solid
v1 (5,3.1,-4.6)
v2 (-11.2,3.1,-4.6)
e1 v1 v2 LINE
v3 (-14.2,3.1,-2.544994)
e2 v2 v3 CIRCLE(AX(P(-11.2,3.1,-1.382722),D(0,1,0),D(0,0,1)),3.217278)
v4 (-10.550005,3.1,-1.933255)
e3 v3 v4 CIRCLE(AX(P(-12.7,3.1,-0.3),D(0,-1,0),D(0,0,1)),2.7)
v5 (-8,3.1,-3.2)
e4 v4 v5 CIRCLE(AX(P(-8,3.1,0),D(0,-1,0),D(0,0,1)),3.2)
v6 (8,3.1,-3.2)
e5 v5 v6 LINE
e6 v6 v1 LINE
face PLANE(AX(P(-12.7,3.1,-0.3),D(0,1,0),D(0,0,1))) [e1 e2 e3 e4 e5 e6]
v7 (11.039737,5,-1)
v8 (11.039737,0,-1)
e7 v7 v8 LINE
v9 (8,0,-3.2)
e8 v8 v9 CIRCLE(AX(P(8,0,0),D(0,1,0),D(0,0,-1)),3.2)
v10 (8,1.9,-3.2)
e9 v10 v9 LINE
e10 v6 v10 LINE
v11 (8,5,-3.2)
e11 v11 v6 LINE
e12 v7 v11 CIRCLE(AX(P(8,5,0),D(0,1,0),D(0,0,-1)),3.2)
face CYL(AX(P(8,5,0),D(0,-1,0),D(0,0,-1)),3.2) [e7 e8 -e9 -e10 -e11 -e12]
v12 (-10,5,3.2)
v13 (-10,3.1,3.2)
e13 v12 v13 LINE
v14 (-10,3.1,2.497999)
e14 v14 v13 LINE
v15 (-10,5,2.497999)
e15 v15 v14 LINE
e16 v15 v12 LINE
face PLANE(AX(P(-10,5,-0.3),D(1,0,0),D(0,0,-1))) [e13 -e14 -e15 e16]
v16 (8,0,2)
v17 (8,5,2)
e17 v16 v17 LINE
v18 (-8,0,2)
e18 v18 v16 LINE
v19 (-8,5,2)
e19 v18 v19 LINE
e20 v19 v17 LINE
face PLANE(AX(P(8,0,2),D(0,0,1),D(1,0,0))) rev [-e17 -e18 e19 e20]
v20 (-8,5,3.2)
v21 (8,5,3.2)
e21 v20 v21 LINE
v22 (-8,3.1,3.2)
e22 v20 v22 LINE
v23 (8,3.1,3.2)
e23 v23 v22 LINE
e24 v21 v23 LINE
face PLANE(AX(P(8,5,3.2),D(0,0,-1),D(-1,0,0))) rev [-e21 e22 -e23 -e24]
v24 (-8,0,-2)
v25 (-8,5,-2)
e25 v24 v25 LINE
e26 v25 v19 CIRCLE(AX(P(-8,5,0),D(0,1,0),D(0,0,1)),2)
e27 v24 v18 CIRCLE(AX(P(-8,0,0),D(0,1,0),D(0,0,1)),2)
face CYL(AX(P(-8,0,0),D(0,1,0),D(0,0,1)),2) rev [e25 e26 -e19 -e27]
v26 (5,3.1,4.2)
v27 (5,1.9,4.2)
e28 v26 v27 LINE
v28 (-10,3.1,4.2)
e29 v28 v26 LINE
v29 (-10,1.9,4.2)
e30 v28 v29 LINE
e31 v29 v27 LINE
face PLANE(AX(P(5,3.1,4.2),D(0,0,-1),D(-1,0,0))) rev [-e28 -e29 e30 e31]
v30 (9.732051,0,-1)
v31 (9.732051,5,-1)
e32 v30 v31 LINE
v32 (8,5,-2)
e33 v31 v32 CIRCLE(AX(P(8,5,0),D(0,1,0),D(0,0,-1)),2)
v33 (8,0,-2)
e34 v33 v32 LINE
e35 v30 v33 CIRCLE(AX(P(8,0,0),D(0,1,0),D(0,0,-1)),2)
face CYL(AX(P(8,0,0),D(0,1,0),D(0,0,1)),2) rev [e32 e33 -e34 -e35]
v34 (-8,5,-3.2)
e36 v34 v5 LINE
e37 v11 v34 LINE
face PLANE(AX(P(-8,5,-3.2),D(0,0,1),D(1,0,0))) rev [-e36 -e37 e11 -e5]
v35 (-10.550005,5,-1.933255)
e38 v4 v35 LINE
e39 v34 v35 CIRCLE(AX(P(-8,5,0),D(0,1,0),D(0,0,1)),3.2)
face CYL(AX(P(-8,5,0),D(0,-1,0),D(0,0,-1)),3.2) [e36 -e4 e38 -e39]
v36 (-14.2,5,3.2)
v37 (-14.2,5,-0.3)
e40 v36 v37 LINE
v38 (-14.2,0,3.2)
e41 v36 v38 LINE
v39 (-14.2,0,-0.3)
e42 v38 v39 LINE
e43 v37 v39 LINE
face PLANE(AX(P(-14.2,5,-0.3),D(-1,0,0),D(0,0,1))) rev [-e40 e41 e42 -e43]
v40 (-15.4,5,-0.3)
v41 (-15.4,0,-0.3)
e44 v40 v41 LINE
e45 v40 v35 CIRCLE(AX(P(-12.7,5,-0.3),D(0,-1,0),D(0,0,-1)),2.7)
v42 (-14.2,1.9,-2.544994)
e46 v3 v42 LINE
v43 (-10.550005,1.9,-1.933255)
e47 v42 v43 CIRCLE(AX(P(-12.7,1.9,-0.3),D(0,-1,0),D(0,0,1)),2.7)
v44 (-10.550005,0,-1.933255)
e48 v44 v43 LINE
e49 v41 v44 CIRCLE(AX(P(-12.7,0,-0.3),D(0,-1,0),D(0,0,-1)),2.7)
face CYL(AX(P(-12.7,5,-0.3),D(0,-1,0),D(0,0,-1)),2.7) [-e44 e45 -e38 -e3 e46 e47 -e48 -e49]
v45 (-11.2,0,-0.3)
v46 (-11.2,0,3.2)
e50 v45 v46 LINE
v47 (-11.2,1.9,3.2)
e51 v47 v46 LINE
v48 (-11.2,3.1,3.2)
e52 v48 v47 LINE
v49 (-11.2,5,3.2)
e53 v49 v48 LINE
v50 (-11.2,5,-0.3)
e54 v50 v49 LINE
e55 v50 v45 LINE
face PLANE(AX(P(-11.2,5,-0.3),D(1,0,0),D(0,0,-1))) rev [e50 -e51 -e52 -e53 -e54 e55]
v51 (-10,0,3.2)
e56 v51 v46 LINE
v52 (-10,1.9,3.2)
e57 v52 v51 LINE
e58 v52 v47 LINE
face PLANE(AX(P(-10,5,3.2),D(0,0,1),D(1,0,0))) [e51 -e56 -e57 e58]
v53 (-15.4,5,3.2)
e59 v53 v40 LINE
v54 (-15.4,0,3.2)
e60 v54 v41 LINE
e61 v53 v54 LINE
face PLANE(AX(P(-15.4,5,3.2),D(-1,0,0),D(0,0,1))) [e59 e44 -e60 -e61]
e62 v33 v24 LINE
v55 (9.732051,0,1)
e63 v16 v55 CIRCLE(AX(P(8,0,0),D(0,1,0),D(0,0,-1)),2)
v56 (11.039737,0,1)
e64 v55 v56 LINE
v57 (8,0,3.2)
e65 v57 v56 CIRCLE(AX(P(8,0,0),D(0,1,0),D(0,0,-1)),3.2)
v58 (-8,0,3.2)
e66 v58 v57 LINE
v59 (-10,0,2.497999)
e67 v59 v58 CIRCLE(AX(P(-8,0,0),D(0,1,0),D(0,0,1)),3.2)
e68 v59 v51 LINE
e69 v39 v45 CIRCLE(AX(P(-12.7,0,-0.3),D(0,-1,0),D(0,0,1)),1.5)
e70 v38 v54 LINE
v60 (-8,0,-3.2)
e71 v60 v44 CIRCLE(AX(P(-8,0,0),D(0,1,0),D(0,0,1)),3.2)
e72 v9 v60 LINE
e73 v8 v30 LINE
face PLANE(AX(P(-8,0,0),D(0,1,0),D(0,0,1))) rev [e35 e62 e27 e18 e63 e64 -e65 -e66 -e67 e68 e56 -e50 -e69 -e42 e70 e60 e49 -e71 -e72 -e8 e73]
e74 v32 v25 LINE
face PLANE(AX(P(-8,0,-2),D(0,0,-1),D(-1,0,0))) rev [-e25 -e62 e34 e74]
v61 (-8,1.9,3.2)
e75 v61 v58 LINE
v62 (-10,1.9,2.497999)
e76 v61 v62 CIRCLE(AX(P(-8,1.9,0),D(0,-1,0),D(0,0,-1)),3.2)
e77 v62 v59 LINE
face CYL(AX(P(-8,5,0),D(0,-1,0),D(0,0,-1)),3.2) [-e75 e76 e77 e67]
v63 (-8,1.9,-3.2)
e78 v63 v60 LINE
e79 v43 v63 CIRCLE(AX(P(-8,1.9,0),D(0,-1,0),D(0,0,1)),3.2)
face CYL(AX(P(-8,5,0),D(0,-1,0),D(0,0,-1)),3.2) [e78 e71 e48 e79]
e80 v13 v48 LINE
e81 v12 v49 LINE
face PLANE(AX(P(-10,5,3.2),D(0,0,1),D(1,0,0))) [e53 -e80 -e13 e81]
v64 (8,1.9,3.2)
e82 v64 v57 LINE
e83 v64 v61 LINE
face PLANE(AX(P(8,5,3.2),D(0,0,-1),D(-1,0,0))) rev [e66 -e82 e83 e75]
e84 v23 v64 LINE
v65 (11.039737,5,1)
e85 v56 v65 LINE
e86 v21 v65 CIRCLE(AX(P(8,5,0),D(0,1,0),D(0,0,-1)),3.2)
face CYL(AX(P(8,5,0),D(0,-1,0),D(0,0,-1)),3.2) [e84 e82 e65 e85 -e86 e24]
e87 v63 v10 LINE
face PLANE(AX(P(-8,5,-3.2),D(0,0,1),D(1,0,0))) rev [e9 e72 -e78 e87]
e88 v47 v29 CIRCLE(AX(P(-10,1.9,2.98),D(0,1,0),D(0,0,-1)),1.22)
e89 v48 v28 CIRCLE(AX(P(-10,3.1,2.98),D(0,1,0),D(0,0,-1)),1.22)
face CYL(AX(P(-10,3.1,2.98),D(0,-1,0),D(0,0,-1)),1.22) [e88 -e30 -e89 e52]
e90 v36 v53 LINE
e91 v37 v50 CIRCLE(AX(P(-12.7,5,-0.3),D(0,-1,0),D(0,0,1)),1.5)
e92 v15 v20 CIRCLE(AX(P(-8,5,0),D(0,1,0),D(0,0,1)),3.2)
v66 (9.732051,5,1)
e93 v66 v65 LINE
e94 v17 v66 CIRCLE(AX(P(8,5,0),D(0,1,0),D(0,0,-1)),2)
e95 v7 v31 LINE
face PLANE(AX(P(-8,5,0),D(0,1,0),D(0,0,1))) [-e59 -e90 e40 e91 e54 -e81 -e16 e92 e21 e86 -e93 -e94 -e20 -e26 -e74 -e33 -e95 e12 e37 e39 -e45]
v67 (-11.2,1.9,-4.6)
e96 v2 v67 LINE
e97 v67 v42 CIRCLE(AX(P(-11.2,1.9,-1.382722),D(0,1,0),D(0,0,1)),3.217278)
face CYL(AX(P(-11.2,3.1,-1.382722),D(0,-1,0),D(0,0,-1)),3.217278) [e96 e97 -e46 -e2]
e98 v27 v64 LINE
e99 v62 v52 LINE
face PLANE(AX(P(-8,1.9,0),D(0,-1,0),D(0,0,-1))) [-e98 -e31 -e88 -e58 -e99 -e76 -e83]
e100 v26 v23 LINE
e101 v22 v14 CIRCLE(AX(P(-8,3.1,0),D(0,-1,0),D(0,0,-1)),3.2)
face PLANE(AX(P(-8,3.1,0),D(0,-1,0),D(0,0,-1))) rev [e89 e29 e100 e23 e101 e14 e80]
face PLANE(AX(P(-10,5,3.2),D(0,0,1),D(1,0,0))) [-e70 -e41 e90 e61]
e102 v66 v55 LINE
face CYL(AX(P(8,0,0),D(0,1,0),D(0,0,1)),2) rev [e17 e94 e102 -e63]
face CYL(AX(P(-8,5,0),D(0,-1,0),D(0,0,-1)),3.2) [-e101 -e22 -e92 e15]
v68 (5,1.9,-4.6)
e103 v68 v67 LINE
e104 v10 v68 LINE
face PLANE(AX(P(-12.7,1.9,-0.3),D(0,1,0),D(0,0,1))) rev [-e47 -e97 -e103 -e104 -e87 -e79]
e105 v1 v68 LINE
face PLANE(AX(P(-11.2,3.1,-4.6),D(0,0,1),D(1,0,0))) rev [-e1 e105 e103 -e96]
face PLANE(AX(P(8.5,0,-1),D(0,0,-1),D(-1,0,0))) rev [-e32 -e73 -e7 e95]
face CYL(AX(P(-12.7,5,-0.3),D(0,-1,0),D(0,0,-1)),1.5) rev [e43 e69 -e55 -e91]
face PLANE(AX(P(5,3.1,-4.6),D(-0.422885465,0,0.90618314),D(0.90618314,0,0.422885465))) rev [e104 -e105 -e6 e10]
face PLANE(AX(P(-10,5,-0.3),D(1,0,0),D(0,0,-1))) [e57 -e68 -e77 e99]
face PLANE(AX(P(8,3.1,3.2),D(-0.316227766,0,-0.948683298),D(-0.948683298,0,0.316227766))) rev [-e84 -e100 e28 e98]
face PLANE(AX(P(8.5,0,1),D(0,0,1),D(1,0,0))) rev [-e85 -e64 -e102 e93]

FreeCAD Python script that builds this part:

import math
import FreeCAD as App
import Part
import Sketcher

V = App.Vector

doc = App.newDocument("Part")
body = doc.addObject("PartDesign::Body", "Body")

# Sketch on XZ plane
sketch1 = body.newObject("Sketcher::SketchObject", "Sketch")
sketch1.AttachmentSupport = (doc.getObject("XZ_Plane"), [""])
sketch1.MapMode = "FlatFace"
sketch1.addGeometry(Part.LineSegment(V(8, -3.2, 0), V(-8, -3.2, 0)), False)
sketch1.addGeometry(Part.ArcOfCircle(Part.Circle(V(-8, 0, 0), V(0, 0, 1), 3.2), math.radians(90), math.radians(270)), False)
sketch1.addGeometry(Part.LineSegment(V(-8, 3.2, 0), V(8, 3.2, 0)), False)
sketch1.addGeometry(Part.ArcOfCircle(Part.Circle(V(8, 0, 0), V(0, 0, 1), 3.2), math.radians(-90), math.radians(90)), False)
sketch1.addConstraint(Sketcher.Constraint("Tangent", 0, 2, 1, 2))
sketch1.addConstraint(Sketcher.Constraint("Tangent", 1, 1, 2, 1))
sketch1.addConstraint(Sketcher.Constraint("Tangent", 2, 2, 3, 2))
sketch1.addConstraint(Sketcher.Constraint("Tangent", 3, 1, 0, 1))
sketch1.addConstraint(Sketcher.Constraint("Horizontal", 0))
sketch1.addConstraint(Sketcher.Constraint("Horizontal", 2))
sketch1.addConstraint(Sketcher.Constraint("Symmetric", 1, 3, 3, 3, -1, 1))
sketch1.addConstraint(Sketcher.Constraint("Radius", 1, 3.2))
sketch1.addConstraint(Sketcher.Constraint("DistanceX", 0, 2, 0, 1, 16.0))
pad1 = body.newObject("PartDesign::Pad", "Pad")
pad1.Profile = sketch1
pad1.Length = 5
pad1.Reversed = True

# Sketch on XZ plane
sketch2 = body.newObject("Sketcher::SketchObject", "Sketch001")
sketch2.AttachmentSupport = (doc.getObject("XZ_Plane"), [""])
sketch2.MapMode = "FlatFace"
sketch2.AttachmentOffset = App.Placement(V(0, 0, -5), App.Rotation())
sketch2.addGeometry(Part.LineSegment(V(8, -2, 0), V(-8, -2, 0)), False)
sketch2.addGeometry(Part.ArcOfCircle(Part.Circle(V(-8, 0, 0), V(0, 0, 1), 2), math.radians(90), math.radians(270)), False)
sketch2.addGeometry(Part.LineSegment(V(-8, 2, 0), V(8, 2, 0)), False)
sketch2.addGeometry(Part.ArcOfCircle(Part.Circle(V(8, 0, 0), V(0, 0, 1), 2), math.radians(-90), math.radians(90)), False)
sketch2.addConstraint(Sketcher.Constraint("Tangent", 0, 2, 1, 2))
sketch2.addConstraint(Sketcher.Constraint("Tangent", 1, 1, 2, 1))
sketch2.addConstraint(Sketcher.Constraint("Tangent", 2, 2, 3, 2))
sketch2.addConstraint(Sketcher.Constraint("Tangent", 3, 1, 0, 1))
sketch2.addConstraint(Sketcher.Constraint("Horizontal", 0))
sketch2.addConstraint(Sketcher.Constraint("Horizontal", 2))
sketch2.addConstraint(Sketcher.Constraint("Symmetric", 1, 3, 3, 3, -1, 1))
sketch2.addConstraint(Sketcher.Constraint("Radius", 1, 2.0))
sketch2.addConstraint(Sketcher.Constraint("DistanceX", 0, 2, 0, 1, 16.0))
pocket1 = body.newObject("PartDesign::Pocket", "Pocket")
pocket1.Profile = sketch2
pocket1.Type = "ThroughAll"
pocket1.Reversed = True

# Sketch on XZ plane
sketch3 = body.newObject("Sketcher::SketchObject", "Sketch002")
sketch3.AttachmentSupport = (doc.getObject("XZ_Plane"), [""])
sketch3.MapMode = "FlatFace"
sketch3.AttachmentOffset = App.Placement(V(0, 0, -5), App.Rotation())
sketch3.addGeometry(Part.LineSegment(V(8.5, -1, 0), V(8.5, 1, 0)), False)
sketch3.addGeometry(Part.LineSegment(V(8.5, 1, 0), V(12.5, 1, 0)), False)
sketch3.addGeometry(Part.LineSegment(V(12.5, 1, 0), V(12.5, -1, 0)), False)
sketch3.addGeometry(Part.LineSegment(V(12.5, -1, 0), V(8.5, -1, 0)), False)
sketch3.addConstraint(Sketcher.Constraint("Coincident", 0, 2, 1, 1))
sketch3.addConstraint(Sketcher.Constraint("Coincident", 1, 2, 2, 1))
sketch3.addConstraint(Sketcher.Constraint("Coincident", 2, 2, 3, 1))
sketch3.addConstraint(Sketcher.Constraint("Coincident", 3, 2, 0, 1))
sketch3.addConstraint(Sketcher.Constraint("Vertical", 0))
sketch3.addConstraint(Sketcher.Constraint("Horizontal", 1))
sketch3.addConstraint(Sketcher.Constraint("Vertical", 2))
sketch3.addConstraint(Sketcher.Constraint("Horizontal", 3))
sketch3.addConstraint(Sketcher.Constraint("DistanceX", 1, 1, 1, 2, 4.0))
sketch3.addConstraint(Sketcher.Constraint("DistanceY", 0, 1, 0, 2, 2.0))
sketch3.addConstraint(Sketcher.Constraint("DistanceY", -1, 1, 0, 2, 1.0))
sketch3.addConstraint(Sketcher.Constraint("DistanceX", -1, 1, 0, 2, 8.5))
pocket2 = body.newObject("PartDesign::Pocket", "Pocket001")
pocket2.Profile = sketch3
pocket2.Type = "ThroughAll"
pocket2.Reversed = True

# Sketch on XZ plane
sketch4 = body.newObject("Sketcher::SketchObject", "Sketch003")
sketch4.AttachmentSupport = (doc.getObject("XZ_Plane"), [""])
sketch4.MapMode = "FlatFace"
sketch4.addGeometry(Part.LineSegment(V(-10, -0.3, 0), V(-10, 3.2, 0)), False)
sketch4.addGeometry(Part.LineSegment(V(-10, 3.2, 0), V(-15.4, 3.2, 0)), False)
sketch4.addGeometry(Part.LineSegment(V(-15.4, 3.2, 0), V(-15.4, -0.3, 0)), False)
sketch4.addGeometry(Part.ArcOfCircle(Part.Circle(V(-12.7, -0.3, 0), V(0, 0, 1), 2.7), math.radians(180), math.radians(360)), False)
sketch4.addConstraint(Sketcher.Constraint("Coincident", 0, 2, 1, 1))
sketch4.addConstraint(Sketcher.Constraint("Coincident", 1, 2, 2, 1))
sketch4.addConstraint(Sketcher.Constraint("Tangent", 2, 2, 3, 1))
sketch4.addConstraint(Sketcher.Constraint("Tangent", 3, 2, 0, 1))
sketch4.addConstraint(Sketcher.Constraint("Vertical", 0))
sketch4.addConstraint(Sketcher.Constraint("Horizontal", 1))
sketch4.addConstraint(Sketcher.Constraint("Vertical", 2))
sketch4.addConstraint(Sketcher.Constraint("Radius", 3, 2.7))
sketch4.addConstraint(Sketcher.Constraint("DistanceY", 0, 1, 0, 2, 3.5))
sketch4.addConstraint(Sketcher.Constraint("DistanceX", 0, 2, -1, 1, 10.0))
sketch4.addConstraint(Sketcher.Constraint("DistanceY", 3, 3, -1, 1, 0.3))
pad2 = body.newObject("PartDesign::Pad", "Pad001")
pad2.Profile = sketch4
pad2.Length = 5
pad2.Reversed = True

# Sketch on XZ plane
sketch5 = body.newObject("Sketcher::SketchObject", "Sketch004")
sketch5.AttachmentSupport = (doc.getObject("XZ_Plane"), [""])
sketch5.MapMode = "FlatFace"
sketch5.addGeometry(Part.LineSegment(V(-14.2, 3.2, 0), V(-14.2, -0.3, 0)), False)
sketch5.addGeometry(Part.ArcOfCircle(Part.Circle(V(-12.7, -0.3, 0), V(0, 0, 1), 1.5), math.radians(180), math.radians(360)), False)
sketch5.addGeometry(Part.LineSegment(V(-11.2, -0.3, 0), V(-11.2, 3.2, 0)), False)
sketch5.addGeometry(Part.LineSegment(V(-11.2, 3.2, 0), V(-14.2, 3.2, 0)), False)
sketch5.addConstraint(Sketcher.Constraint("Tangent", 0, 2, 1, 1))
sketch5.addConstraint(Sketcher.Constraint("Tangent", 1, 2, 2, 1))
sketch5.addConstraint(Sketcher.Constraint("Coincident", 2, 2, 3, 1))
sketch5.addConstraint(Sketcher.Constraint("Coincident", 3, 2, 0, 1))
sketch5.addConstraint(Sketcher.Constraint("Vertical", 0))
sketch5.addConstraint(Sketcher.Constraint("Vertical", 2))
sketch5.addConstraint(Sketcher.Constraint("Horizontal", 3))
sketch5.addConstraint(Sketcher.Constraint("Radius", 1, 1.5))
sketch5.addConstraint(Sketcher.Constraint("DistanceY", 0, 2, 0, 1, 3.5))
sketch5.addConstraint(Sketcher.Constraint("DistanceX", 1, 3, -1, 1, 12.7))
sketch5.addConstraint(Sketcher.Constraint("DistanceY", 1, 3, -1, 1, 0.3))
pocket3 = body.newObject("PartDesign::Pocket", "Pocket002")
pocket3.Profile = sketch5
pocket3.Type = "ThroughAll"

# Sketch on XZ plane
sketch6 = body.newObject("Sketcher::SketchObject", "Sketch005")
sketch6.AttachmentSupport = (doc.getObject("XZ_Plane"), [""])
sketch6.MapMode = "FlatFace"
sketch6.AttachmentOffset = App.Placement(V(0, 0, -2.5), App.Rotation())
sketch6.addGeometry(Part.LineSegment(V(5, -4.6, 0), V(-11.2, -4.6, 0)), False)
sketch6.addGeometry(Part.ArcOfCircle(Part.Circle(V(-11.2, -1.4, 0), V(0, 0, 1), 3.2), math.radians(-159), math.radians(-90)), False)
sketch6.addGeometry(Part.ArcOfCircle(Part.Circle(V(-12.7, -0.3, 0), V(0, 0, 1), 2.7), math.radians(-124), math.radians(-37)), False)
sketch6.addGeometry(Part.ArcOfCircle(Part.Circle(V(-8, 0, 0), V(0, 0, 1), 3.2), math.radians(-143), math.radians(-90)), False)
sketch6.addGeometry(Part.LineSegment(V(-8, -3.2, 0), V(8, -3.2, 0)), False)
sketch6.addGeometry(Part.LineSegment(V(8, -3.2, 0), V(5, -4.6, 0)), False)
sketch6.addConstraint(Sketcher.Constraint("Tangent", 0, 2, 1, 2))
sketch6.addConstraint(Sketcher.Constraint("Coincident", 1, 1, 2, 1))
sketch6.addConstraint(Sketcher.Constraint("Coincident", 2, 2, 3, 1))
sketch6.addConstraint(Sketcher.Constraint("Tangent", 3, 2, 4, 1))
sketch6.addConstraint(Sketcher.Constraint("Coincident", 4, 2, 5, 1))
sketch6.addConstraint(Sketcher.Constraint("Coincident", 5, 2, 0, 1))
sketch6.addConstraint(Sketcher.Constraint("Horizontal", 0))
sketch6.addConstraint(Sketcher.Constraint("Horizontal", 4))
sketch6.addConstraint(Sketcher.Constraint("PointOnObject", 3, 3, -1))
sketch6.addConstraint(Sketcher.Constraint("Radius", 2, 2.7))
sketch6.addConstraint(Sketcher.Constraint("Radius", 3, 3.2))
sketch6.addConstraint(Sketcher.Constraint("DistanceX", 4, 1, 4, 2, 16.0))
sketch6.addConstraint(Sketcher.Constraint("DistanceX", 0, 2, 0, 1, 16.2))
sketch6.addConstraint(Sketcher.Constraint("DistanceX", 3, 3, -1, 1, 8.0))
sketch6.addConstraint(Sketcher.Constraint("DistanceX", -1, 1, 5, 2, 5.0))
sketch6.addConstraint(Sketcher.Constraint("DistanceX", 1, 1, 1, 3, 3.0))
sketch6.addConstraint(Sketcher.Constraint("DistanceX", 2, 3, -1, 1, 12.7))
sketch6.addConstraint(Sketcher.Constraint("DistanceY", 2, 3, -1, 1, 0.3))
sketch6.addConstraint(Sketcher.Constraint("DistanceY", 0, 2, -1, 1, 4.6))
pad3 = body.newObject("PartDesign::Pad", "Pad002")
pad3.Profile = sketch6
pad3.Length = 1.2
pad3.Midplane = True

# Sketch on XZ plane
sketch7 = body.newObject("Sketcher::SketchObject", "Sketch006")
sketch7.AttachmentSupport = (doc.getObject("XZ_Plane"), [""])
sketch7.MapMode = "FlatFace"
sketch7.AttachmentOffset = App.Placement(V(0, 0, -2.5), App.Rotation())
sketch7.addGeometry(Part.LineSegment(V(8, 3.2, 0), V(-8, 3.2, 0)), False)
sketch7.addGeometry(Part.ArcOfCircle(Part.Circle(V(-8, 0, 0), V(0, 0, 1), 3.2), math.radians(90), math.radians(129)), False)
sketch7.addGeometry(Part.LineSegment(V(-10, 2.5, 0), V(-10, 3.2, 0)), False)
sketch7.addGeometry(Part.LineSegment(V(-10, 3.2, 0), V(-11.2, 3.2, 0)), False)
sketch7.addGeometry(Part.ArcOfCircle(Part.Circle(V(-10, 3, 0), V(0, 0, 1), 1.2), math.radians(90), math.radians(170)), False)
sketch7.addGeometry(Part.LineSegment(V(-10, 4.2, 0), V(5, 4.2, 0)), False)
sketch7.addGeometry(Part.LineSegment(V(5, 4.2, 0), V(8, 3.2, 0)), False)
sketch7.addConstraint(Sketcher.Constraint("Tangent", 0, 2, 1, 1))
sketch7.addConstraint(Sketcher.Constraint("Coincident", 1, 2, 2, 1))
sketch7.addConstraint(Sketcher.Constraint("Coincident", 2, 2, 3, 1))
sketch7.addConstraint(Sketcher.Constraint("Coincident", 3, 2, 4, 2))
sketch7.addConstraint(Sketcher.Constraint("Tangent", 4, 1, 5, 1))
sketch7.addConstraint(Sketcher.Constraint("Coincident", 5, 2, 6, 1))
sketch7.addConstraint(Sketcher.Constraint("Coincident", 6, 2, 0, 1))
sketch7.addConstraint(Sketcher.Constraint("Horizontal", 0))
sketch7.addConstraint(Sketcher.Constraint("Vertical", 2))
sketch7.addConstraint(Sketcher.Constraint("Horizontal", 3))
sketch7.addConstraint(Sketcher.Constraint("Horizontal", 5))
sketch7.addConstraint(Sketcher.Constraint("PointOnObject", 1, 3, -1))
sketch7.addConstraint(Sketcher.Constraint("Horizontal", 0, 2, 2, 2))
sketch7.addConstraint(Sketcher.Constraint("Vertical", 4, 3, 1, 2))
sketch7.addConstraint(Sketcher.Constraint("Radius", 1, 3.2))
sketch7.addConstraint(Sketcher.Constraint("DistanceX", 0, 2, 0, 1, 16.0))
sketch7.addConstraint(Sketcher.Constraint("DistanceX", 5, 1, 5, 2, 15.0))
sketch7.addConstraint(Sketcher.Constraint("Radius", 4, 1.22))
sketch7.addConstraint(Sketcher.Constraint("DistanceX", 3, 2, 3, 1, 1.2))
sketch7.addConstraint(Sketcher.Constraint("DistanceX", 1, 3, -1, 1, 8.0))
sketch7.addConstraint(Sketcher.Constraint("DistanceX", 4, 3, -1, 1, 10.0))
pad4 = body.newObject("PartDesign::Pad", "Pad003")
pad4.Profile = sketch7
pad4.Length = 1.2
pad4.Midplane = True

doc.recompute()
